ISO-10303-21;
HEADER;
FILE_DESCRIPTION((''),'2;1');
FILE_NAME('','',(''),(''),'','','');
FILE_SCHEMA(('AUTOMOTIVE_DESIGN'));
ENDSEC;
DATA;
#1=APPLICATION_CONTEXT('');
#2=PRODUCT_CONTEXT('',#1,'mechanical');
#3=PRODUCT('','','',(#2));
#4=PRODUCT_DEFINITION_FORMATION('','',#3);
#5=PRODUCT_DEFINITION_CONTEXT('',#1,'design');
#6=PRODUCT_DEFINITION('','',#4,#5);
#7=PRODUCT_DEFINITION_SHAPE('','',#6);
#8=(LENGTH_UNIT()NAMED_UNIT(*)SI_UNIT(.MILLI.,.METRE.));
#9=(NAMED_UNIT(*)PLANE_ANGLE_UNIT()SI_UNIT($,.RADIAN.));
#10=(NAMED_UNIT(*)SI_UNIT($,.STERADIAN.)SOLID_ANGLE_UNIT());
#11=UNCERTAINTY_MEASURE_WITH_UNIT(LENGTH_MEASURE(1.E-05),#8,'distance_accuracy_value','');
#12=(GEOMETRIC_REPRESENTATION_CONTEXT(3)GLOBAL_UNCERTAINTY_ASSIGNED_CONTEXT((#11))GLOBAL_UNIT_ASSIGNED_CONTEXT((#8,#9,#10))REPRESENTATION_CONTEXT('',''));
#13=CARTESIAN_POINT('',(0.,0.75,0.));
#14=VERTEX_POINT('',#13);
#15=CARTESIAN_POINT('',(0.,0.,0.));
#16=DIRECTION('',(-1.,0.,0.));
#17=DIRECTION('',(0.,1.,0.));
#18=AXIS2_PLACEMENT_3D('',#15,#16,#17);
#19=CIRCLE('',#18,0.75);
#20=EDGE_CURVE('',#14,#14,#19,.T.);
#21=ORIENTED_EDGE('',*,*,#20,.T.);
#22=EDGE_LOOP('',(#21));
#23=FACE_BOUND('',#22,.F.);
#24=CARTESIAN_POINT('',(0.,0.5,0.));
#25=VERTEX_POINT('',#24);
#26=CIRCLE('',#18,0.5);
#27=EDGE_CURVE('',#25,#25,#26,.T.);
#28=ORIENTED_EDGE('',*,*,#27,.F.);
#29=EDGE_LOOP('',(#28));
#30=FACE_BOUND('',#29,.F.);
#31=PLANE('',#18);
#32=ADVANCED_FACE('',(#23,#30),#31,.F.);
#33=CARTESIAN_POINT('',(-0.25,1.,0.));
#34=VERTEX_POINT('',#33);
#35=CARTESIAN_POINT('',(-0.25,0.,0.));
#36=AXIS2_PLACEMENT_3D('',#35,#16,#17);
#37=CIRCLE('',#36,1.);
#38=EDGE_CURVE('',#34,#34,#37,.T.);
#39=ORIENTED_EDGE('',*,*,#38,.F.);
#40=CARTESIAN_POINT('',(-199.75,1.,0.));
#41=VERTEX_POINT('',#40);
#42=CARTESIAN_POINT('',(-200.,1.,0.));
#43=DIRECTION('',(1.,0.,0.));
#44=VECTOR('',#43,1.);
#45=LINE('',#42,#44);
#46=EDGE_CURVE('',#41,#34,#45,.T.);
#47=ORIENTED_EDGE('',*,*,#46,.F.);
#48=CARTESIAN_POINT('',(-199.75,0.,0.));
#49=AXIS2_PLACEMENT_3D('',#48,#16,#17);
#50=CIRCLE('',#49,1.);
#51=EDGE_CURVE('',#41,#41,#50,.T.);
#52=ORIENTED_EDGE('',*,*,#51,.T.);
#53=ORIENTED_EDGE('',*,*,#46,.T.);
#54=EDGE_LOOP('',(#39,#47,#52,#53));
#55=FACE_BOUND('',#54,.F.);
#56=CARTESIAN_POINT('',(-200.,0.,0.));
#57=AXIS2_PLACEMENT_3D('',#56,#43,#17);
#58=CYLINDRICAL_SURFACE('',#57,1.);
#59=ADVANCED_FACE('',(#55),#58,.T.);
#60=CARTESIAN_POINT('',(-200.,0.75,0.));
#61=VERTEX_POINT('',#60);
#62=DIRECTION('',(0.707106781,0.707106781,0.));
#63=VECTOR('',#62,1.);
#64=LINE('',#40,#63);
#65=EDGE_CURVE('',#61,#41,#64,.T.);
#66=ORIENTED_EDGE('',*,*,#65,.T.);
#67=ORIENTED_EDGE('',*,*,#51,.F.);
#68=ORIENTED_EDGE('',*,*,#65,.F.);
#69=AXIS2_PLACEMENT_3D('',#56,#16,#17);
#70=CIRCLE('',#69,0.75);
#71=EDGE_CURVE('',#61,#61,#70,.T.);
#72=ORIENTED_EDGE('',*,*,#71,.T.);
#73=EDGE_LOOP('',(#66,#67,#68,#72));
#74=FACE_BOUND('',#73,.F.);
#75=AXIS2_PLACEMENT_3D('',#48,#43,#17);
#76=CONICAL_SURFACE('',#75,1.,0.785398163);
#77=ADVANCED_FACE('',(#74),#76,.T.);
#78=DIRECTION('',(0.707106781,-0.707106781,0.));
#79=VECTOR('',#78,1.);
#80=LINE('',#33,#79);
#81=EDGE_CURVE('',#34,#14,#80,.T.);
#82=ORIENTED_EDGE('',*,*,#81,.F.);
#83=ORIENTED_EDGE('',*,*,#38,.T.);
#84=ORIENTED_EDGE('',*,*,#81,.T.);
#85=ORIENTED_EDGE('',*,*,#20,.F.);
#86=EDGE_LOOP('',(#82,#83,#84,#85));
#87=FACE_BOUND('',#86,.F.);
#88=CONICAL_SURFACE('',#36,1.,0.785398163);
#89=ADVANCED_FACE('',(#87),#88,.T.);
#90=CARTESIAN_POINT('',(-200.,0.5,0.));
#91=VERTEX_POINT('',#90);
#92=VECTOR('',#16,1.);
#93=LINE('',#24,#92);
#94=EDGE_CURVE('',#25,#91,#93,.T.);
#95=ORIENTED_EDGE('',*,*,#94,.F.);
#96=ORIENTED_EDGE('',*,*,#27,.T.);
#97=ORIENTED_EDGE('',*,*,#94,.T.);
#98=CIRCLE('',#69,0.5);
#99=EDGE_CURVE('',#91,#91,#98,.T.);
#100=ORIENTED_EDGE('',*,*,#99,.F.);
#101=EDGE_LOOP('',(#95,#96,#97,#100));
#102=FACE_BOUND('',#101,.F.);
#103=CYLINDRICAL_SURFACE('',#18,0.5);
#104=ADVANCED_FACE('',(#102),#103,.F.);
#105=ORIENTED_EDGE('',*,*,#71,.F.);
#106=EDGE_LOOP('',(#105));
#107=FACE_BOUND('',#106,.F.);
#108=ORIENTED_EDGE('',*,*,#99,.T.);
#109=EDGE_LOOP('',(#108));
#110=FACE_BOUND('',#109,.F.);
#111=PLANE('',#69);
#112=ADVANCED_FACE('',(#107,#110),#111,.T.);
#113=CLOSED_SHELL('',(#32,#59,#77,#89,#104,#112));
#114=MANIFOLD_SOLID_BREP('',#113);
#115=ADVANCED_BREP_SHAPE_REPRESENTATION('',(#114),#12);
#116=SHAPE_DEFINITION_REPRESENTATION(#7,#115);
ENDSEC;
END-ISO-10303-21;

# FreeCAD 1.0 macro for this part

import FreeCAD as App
import Part
import Sketcher
from FreeCAD import Vector
Q = App.Units.Quantity


def edges_at(feature, points):
    """Names of the edges that pass closest to the given points."""
    edges = feature.Shape.Edges
    near = lambda p: min(range(len(edges)), key=lambda i: edges[i].distToShape(Part.Vertex(*p))[0])
    return sorted({f"Edge{near(p) + 1}" for p in points})


def add_polygon(sketch, points):
    """Adds a closed chain of lines whose ends are joined by coincident constraints."""
    first, n = sketch.GeometryCount, len(points)
    for a, b in zip(points, points[1:] + points[:1]):
        sketch.addGeometry(Part.LineSegment(App.Vector(*a, 0), App.Vector(*b, 0)), False)
    for i in range(n):
        sketch.addConstraint(Sketcher.Constraint("Coincident", first + i, 2, first + (i + 1) % n, 1))

doc = App.newDocument("Part")
body = doc.addObject("PartDesign::Body", "Body")

# Sketch on XY plane
sketch1 = body.newObject("Sketcher::SketchObject", "Sketch")
sketch1.AttachmentSupport = (doc.getObject("XY_Plane"), [""])
sketch1.MapMode = "FlatFace"
add_polygon(sketch1, [(-200, 0.5), (0, 0.5), (0, 1), (-200, 1)])  # lines 0-3
sketch1.addConstraint([
    Sketcher.Constraint("Horizontal", 0),
    Sketcher.Constraint("Vertical", 1),
    Sketcher.Constraint("Horizontal", 2),
    Sketcher.Constraint("Vertical", 3),
    Sketcher.Constraint("PointOnObject", 0, 2, -2),
    Sketcher.Constraint("DistanceX", 0, 1, 0, 2, Q("200 mm")),
    Sketcher.Constraint("DistanceY", 1, 1, 1, 2, Q("0.5 mm")),
    Sketcher.Constraint("DistanceY", -1, 1, 1, 2, Q("1 mm")),
])
revolution = body.newObject("PartDesign::Revolution", "Revolution")
revolution.Profile = sketch1
revolution.ReferenceAxis = (sketch1, ["H_Axis"])
revolution.Angle = 360
doc.recompute()

chamfer = body.newObject("PartDesign::Chamfer", "Chamfer")
chamfer.Base = (revolution, edges_at(revolution, [(0, -1, 0), (-200, -1, 0)]))
chamfer.Size = 0.25

doc.recompute()
